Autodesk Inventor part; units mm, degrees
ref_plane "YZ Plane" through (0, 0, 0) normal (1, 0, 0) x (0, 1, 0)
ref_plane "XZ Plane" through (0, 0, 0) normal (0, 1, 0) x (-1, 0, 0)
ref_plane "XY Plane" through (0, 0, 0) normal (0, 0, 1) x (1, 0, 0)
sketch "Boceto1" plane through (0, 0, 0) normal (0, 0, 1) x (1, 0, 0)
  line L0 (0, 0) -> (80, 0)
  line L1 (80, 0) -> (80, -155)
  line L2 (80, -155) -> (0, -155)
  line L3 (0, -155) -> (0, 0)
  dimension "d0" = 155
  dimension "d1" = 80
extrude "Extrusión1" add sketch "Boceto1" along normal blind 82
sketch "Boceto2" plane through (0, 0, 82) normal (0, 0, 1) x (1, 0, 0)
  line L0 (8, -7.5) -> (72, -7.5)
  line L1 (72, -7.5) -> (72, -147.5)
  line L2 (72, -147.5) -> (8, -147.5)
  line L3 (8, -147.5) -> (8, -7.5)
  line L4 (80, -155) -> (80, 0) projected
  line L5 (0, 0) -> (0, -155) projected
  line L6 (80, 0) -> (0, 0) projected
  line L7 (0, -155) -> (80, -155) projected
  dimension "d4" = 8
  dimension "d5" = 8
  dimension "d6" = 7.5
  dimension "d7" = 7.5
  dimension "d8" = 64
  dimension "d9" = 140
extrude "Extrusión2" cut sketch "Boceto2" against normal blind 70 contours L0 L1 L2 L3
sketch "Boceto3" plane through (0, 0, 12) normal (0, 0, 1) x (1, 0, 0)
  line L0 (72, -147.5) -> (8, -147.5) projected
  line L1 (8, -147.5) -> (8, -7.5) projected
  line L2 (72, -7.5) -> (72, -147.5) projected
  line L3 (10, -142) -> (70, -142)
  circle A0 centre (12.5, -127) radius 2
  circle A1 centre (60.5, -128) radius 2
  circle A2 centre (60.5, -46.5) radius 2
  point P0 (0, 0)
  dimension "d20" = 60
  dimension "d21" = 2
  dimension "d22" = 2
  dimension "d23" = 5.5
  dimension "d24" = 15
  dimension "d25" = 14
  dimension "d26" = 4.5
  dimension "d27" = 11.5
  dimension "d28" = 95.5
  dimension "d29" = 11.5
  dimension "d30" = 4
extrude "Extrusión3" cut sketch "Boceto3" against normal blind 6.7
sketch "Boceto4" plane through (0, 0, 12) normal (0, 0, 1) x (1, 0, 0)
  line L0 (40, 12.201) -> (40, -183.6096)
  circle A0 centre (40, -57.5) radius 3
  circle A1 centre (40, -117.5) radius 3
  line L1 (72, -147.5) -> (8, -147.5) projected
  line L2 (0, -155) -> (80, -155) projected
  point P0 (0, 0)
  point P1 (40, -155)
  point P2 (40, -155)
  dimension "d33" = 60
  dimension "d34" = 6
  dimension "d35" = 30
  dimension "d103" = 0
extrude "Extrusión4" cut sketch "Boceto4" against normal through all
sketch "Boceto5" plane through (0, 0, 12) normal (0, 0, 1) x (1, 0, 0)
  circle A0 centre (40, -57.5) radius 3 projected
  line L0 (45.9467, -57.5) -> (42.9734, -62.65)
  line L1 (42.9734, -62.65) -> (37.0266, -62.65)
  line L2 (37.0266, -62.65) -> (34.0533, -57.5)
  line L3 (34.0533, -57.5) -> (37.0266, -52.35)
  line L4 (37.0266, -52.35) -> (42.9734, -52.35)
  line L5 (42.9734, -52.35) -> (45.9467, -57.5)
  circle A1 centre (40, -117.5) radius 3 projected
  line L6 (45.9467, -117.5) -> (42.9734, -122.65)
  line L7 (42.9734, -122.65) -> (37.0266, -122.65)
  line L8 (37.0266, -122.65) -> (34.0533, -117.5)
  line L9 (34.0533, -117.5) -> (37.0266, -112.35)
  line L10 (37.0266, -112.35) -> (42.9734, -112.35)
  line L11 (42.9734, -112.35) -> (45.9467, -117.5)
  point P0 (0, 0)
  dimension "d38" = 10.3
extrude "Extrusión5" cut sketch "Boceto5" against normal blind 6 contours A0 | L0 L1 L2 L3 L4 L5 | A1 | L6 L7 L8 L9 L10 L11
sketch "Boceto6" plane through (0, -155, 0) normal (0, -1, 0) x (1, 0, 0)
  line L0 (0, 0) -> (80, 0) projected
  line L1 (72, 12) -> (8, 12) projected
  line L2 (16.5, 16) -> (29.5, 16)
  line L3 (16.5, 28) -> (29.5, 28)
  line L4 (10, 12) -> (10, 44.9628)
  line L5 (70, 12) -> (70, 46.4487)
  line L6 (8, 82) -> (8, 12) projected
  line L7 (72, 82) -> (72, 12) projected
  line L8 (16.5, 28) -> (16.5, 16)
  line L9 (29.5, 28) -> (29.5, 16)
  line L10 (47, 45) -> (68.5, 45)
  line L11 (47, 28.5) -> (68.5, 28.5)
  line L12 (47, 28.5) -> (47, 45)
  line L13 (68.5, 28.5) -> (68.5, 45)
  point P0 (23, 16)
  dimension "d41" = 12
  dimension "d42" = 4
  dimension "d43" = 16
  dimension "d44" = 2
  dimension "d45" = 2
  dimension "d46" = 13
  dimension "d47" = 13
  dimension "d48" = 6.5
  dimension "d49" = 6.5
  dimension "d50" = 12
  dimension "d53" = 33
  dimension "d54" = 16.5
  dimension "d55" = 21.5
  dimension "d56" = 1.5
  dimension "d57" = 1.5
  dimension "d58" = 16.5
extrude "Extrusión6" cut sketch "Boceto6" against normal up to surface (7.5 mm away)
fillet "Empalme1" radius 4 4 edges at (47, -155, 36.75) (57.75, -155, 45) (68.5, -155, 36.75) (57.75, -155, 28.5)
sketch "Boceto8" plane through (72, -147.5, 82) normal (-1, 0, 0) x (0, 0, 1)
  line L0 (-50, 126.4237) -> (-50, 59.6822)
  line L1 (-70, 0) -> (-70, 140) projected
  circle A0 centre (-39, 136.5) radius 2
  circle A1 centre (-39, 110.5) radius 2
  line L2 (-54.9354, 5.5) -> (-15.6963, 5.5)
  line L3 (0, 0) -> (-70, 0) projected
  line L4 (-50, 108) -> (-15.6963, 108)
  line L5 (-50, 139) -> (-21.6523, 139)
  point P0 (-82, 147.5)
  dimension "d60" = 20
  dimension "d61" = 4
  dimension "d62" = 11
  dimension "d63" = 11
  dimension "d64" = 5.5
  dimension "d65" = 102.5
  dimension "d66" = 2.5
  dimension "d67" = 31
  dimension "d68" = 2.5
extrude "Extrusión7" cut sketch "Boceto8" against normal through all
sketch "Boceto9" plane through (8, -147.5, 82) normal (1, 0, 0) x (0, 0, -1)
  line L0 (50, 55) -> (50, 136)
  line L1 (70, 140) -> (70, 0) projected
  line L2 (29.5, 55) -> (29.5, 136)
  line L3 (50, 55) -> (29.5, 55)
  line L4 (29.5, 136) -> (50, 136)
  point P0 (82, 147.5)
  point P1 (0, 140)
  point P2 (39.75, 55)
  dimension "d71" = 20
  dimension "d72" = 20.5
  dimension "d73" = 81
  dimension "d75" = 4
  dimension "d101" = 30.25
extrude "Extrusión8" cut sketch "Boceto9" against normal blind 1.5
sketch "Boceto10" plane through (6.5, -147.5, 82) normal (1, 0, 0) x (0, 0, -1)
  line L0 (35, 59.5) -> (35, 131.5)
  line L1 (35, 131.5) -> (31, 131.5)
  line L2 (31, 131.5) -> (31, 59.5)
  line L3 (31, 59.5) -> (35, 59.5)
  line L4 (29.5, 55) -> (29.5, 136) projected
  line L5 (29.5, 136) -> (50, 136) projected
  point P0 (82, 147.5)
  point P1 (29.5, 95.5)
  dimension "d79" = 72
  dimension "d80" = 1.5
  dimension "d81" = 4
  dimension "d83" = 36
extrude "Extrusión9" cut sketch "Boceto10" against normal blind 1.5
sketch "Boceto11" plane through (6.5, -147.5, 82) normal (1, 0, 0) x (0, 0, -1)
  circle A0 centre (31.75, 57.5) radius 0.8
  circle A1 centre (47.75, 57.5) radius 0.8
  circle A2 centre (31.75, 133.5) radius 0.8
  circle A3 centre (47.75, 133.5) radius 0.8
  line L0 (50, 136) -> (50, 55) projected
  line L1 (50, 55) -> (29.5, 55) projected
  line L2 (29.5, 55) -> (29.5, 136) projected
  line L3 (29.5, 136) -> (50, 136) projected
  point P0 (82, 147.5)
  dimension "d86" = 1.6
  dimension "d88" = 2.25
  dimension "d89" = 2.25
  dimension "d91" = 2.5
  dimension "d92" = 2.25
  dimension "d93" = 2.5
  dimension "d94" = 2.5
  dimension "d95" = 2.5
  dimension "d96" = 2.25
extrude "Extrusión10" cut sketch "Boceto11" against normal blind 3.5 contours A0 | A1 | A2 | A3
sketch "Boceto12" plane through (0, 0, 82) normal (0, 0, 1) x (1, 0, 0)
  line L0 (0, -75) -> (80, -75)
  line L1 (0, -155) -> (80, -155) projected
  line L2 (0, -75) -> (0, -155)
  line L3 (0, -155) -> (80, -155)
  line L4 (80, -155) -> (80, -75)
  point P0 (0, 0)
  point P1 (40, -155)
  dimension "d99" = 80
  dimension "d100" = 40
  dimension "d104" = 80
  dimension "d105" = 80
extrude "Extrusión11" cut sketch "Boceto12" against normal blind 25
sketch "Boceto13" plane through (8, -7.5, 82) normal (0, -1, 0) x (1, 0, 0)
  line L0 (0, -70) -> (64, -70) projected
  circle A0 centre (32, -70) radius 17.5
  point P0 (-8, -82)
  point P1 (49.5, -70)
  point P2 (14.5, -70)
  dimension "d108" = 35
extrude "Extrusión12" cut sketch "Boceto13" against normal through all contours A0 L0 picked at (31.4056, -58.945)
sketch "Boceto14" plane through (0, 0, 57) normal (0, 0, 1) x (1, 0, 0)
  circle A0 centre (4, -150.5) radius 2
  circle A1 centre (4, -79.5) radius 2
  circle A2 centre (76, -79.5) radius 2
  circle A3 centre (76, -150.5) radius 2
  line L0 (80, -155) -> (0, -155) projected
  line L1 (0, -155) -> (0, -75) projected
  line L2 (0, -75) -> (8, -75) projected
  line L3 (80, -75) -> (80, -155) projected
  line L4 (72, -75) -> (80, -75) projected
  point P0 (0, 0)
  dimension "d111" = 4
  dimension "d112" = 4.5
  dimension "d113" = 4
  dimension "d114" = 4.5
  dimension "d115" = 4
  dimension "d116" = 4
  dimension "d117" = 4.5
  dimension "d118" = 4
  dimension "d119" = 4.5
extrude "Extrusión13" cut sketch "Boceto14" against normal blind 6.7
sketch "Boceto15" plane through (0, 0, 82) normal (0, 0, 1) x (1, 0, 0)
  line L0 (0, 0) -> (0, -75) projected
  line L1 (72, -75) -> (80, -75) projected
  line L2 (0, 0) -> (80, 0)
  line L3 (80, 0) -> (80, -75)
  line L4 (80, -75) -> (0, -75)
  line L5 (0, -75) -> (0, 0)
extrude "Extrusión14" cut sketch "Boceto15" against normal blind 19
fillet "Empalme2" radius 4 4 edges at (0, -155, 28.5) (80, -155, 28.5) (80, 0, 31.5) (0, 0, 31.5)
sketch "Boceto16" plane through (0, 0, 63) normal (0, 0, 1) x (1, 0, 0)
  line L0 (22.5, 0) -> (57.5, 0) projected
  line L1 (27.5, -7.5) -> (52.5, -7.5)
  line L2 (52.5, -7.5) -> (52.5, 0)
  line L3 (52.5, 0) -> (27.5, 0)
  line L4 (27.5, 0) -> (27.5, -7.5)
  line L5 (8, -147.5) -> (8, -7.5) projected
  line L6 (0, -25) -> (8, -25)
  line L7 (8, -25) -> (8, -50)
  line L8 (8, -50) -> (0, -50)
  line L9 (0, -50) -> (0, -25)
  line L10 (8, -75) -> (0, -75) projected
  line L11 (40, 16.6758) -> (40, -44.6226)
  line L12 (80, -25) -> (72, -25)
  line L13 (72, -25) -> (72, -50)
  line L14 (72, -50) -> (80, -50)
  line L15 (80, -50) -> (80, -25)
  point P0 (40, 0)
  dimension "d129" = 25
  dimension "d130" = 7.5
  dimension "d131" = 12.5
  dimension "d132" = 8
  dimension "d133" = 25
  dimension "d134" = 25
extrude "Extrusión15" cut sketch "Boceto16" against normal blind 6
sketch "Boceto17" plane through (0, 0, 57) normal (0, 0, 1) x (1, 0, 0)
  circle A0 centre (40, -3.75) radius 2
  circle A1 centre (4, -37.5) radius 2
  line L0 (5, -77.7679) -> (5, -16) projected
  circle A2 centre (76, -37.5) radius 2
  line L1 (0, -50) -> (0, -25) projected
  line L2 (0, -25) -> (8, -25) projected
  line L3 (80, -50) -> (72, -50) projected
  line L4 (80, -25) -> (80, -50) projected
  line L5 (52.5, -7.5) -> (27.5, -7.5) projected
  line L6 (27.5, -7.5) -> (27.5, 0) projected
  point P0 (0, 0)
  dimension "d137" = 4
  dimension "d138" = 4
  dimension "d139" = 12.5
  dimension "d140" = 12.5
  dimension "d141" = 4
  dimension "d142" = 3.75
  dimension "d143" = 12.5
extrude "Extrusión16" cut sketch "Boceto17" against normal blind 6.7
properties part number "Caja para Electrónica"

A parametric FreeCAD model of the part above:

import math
import FreeCAD as App
import Part
import Sketcher
from FreeCAD import Vector
Q = App.Units.Quantity


def edges_at(feature, points):
    """Names of the edges that pass closest to the given points."""
    edges = feature.Shape.Edges
    near = lambda p: min(range(len(edges)), key=lambda i: edges[i].distToShape(Part.Vertex(*p))[0])
    return sorted({f"Edge{near(p) + 1}" for p in points})

doc = App.newDocument("Part")
params = doc.addObject("Spreadsheet::Sheet", "Params")
for row, (alias, value) in enumerate([
    ("sketch1_width", "80 mm"),
    ("sketch1_height", "155 mm"),
    ("pad1_length", "82 mm"),
    ("sketch2_width", "64 mm"),
    ("sketch2_height", "140 mm"),
    ("pocket1_length", "70 mm"),
    ("sketch3_diameter", "4 mm"),
    ("pocket2_length", "6.7 mm"),
    ("sketch4_diameter", "6 mm"),
    ("pocket4_length", "6 mm"),
    ("sketch6_width", "13 mm"),
    ("sketch6_height", "12 mm"),
    ("sketch6_width2", "21.5 mm"),
    ("sketch6_height2", "16.5 mm"),
    ("pocket5_length", "7.5 mm"),
    ("fillet_radius", "4 mm"),
    ("sketch7_diameter", "4 mm"),
    ("sketch8_width", "81 mm"),
    ("sketch8_height", "20.5 mm"),
    ("pocket7_length", "1.5 mm"),
    ("sketch9_width", "72 mm"),
    ("sketch9_height", "4 mm"),
    ("pocket8_length", "1.5 mm"),
    ("sketch10_diameter", "1.6 mm"),
    ("pocket9_length", "3.5 mm"),
    ("sketch11_width", "80 mm"),
    ("pocket10_length", "25 mm"),
    ("sketch12_radius", "17.5 mm"),
    ("sketch13_diameter", "4 mm"),
    ("pocket12_length", "6.7 mm"),
    ("sketch14_width", "80 mm"),
    ("sketch14_height", "75 mm"),
    ("pocket13_length", "19 mm"),
    ("fillet2_radius", "4 mm"),
    ("sketch15_width", "25 mm"),
    ("sketch15_width2", "8 mm"),
    ("sketch15_height", "7.5 mm"),
    ("pocket14_length", "6 mm"),
    ("sketch16_diameter", "4 mm"),
    ("pocket15_length", "6.7 mm"),
], start=1):
    params.set(f"A{row}", alias)
    params.set(f"B{row}", "=" + value)
    params.setAlias(f"B{row}", alias)

body = doc.addObject("PartDesign::Body", "Body")

# Sketch on XY plane
sketch1 = body.newObject("Sketcher::SketchObject", "Sketch")
sketch1.AttachmentSupport = (doc.getObject("XY_Plane"), [""])
sketch1.MapMode = "FlatFace"
sketch1.addGeometry([
    Part.LineSegment(Vector(80, 0, 0), Vector(0, 0, 0)),
    Part.LineSegment(Vector(0, 0, 0), Vector(0, -155, 0)),
    Part.LineSegment(Vector(0, -155, 0), Vector(80, -155, 0)),
    Part.LineSegment(Vector(80, -155, 0), Vector(80, 0, 0)),
], False)
sketch1.addConstraint([
    Sketcher.Constraint("Coincident", 0, 2, 1, 1),
    Sketcher.Constraint("Coincident", 1, 2, 2, 1),
    Sketcher.Constraint("Coincident", 2, 2, 3, 1),
    Sketcher.Constraint("Coincident", 3, 2, 0, 1),
    Sketcher.Constraint("Horizontal", 0),
    Sketcher.Constraint("Vertical", 1),
    Sketcher.Constraint("Horizontal", 2),
    Sketcher.Constraint("Vertical", 3),
    Sketcher.Constraint("Coincident", 0, 2, -1, 1),
    Sketcher.Constraint("DistanceX", 0, 2, 0, 1, 80.0),
    Sketcher.Constraint("DistanceY", 1, 2, 1, 1, 155.0),
])
sketch1.setExpression("Constraints[9]", "Params.sketch1_width")
sketch1.setExpression("Constraints[10]", "Params.sketch1_height")
pad1 = body.newObject("PartDesign::Pad", "Pad")
pad1.Profile = sketch1
pad1.setExpression("Length", "Params.pad1_length")

# Sketch on XY plane
sketch2 = body.newObject("Sketcher::SketchObject", "Sketch001")
sketch2.AttachmentSupport = (doc.getObject("XY_Plane"), [""])
sketch2.MapMode = "FlatFace"
sketch2.AttachmentOffset = App.Placement(Vector(0, 0, 82), App.Rotation())
sketch2.addGeometry([
    Part.LineSegment(Vector(72, -8, 0), Vector(8, -8, 0)),
    Part.LineSegment(Vector(8, -8, 0), Vector(8, -148, 0)),
    Part.LineSegment(Vector(8, -148, 0), Vector(72, -148, 0)),
    Part.LineSegment(Vector(72, -148, 0), Vector(72, -8, 0)),
], False)
sketch2.addConstraint([
    Sketcher.Constraint("Coincident", 0, 2, 1, 1),
    Sketcher.Constraint("Coincident", 1, 2, 2, 1),
    Sketcher.Constraint("Coincident", 2, 2, 3, 1),
    Sketcher.Constraint("Coincident", 3, 2, 0, 1),
    Sketcher.Constraint("Horizontal", 0),
    Sketcher.Constraint("Vertical", 1),
    Sketcher.Constraint("Horizontal", 2),
    Sketcher.Constraint("Vertical", 3),
    Sketcher.Constraint("DistanceX", 0, 2, 0, 1, 64.0),
    Sketcher.Constraint("DistanceY", 1, 2, 1, 1, 140.0),
    Sketcher.Constraint("DistanceX", -1, 1, 0, 2, 8.0),
    Sketcher.Constraint("DistanceY", 0, 2, -1, 1, 7.5),
])
sketch2.setExpression("Constraints[8]", "Params.sketch2_width")
sketch2.setExpression("Constraints[9]", "Params.sketch2_height")
pocket1 = body.newObject("PartDesign::Pocket", "Pocket")
pocket1.Profile = sketch2
pocket1.setExpression("Length", "Params.pocket1_length")

# Sketch on XY plane
sketch3 = body.newObject("Sketcher::SketchObject", "Sketch002")
sketch3.AttachmentSupport = (doc.getObject("XY_Plane"), [""])
sketch3.MapMode = "FlatFace"
sketch3.AttachmentOffset = App.Placement(Vector(0, 0, 12), App.Rotation())
sketch3.addGeometry([
    Part.Circle(Vector(12.5, -127, 0), Vector(0, 0, 1), 2),
    Part.Circle(Vector(60.5, -128, 0), Vector(0, 0, 1), 2),
    Part.Circle(Vector(60.5, -46.5, 0), Vector(0, 0, 1), 2),
], False)
sketch3.addConstraint([
    Sketcher.Constraint("Equal", 0, 1),
    Sketcher.Constraint("Equal", 1, 2),
    Sketcher.Constraint("Vertical", 1, 3, 2, 3),
    Sketcher.Constraint("Diameter", 0, 4.0),
    Sketcher.Constraint("DistanceY", 0, 3, -1, 1, 127.0),
    Sketcher.Constraint("DistanceY", 1, 3, -1, 1, 128.0),
    Sketcher.Constraint("DistanceX", 0, 3, 1, 3, 48.0),
    Sketcher.Constraint("DistanceX", -1, 1, 0, 3, 12.5),
    Sketcher.Constraint("DistanceY", 2, 3, -1, 1, 46.5),
])
sketch3.setExpression("Constraints[3]", "Params.sketch3_diameter")
pocket2 = body.newObject("PartDesign::Pocket", "Pocket001")
pocket2.Profile = sketch3
pocket2.setExpression("Length", "Params.pocket2_length")

# Sketch on XY plane
sketch4 = body.newObject("Sketcher::SketchObject", "Sketch003")
sketch4.AttachmentSupport = (doc.getObject("XY_Plane"), [""])
sketch4.MapMode = "FlatFace"
sketch4.AttachmentOffset = App.Placement(Vector(0, 0, 12), App.Rotation())
sketch4.addGeometry([
    Part.Circle(Vector(40, -57.5, 0), Vector(0, 0, 1), 3),
    Part.Circle(Vector(40, -117.5, 0), Vector(0, 0, 1), 3),
], False)
sketch4.addConstraint([
    Sketcher.Constraint("Equal", 0, 1),
    Sketcher.Constraint("Vertical", 0, 3, 1, 3),
    Sketcher.Constraint("Diameter", 0, 6.0),
    Sketcher.Constraint("DistanceY", 1, 3, 0, 3, 60.0),
    Sketcher.Constraint("DistanceX", -1, 1, 0, 3, 40.0),
    Sketcher.Constraint("DistanceY", 0, 3, -1, 1, 57.5),
])
sketch4.setExpression("Constraints[2]", "Params.sketch4_diameter")
pocket3 = body.newObject("PartDesign::Pocket", "Pocket002")
pocket3.Profile = sketch4
pocket3.Type = "ThroughAll"

# Sketch on XY plane
sketch5 = body.newObject("Sketcher::SketchObject", "Sketch004")
sketch5.AttachmentSupport = (doc.getObject("XY_Plane"), [""])
sketch5.MapMode = "FlatFace"
sketch5.AttachmentOffset = App.Placement(Vector(0, 0, 12), App.Rotation())
sketch5.addGeometry([
    Part.LineSegment(Vector(43, -63, 0), Vector(46, -58, 0)),  # 0
    Part.LineSegment(Vector(46, -58, 0), Vector(43, -52, 0)),  # 1
    Part.LineSegment(Vector(43, -52, 0), Vector(37, -52, 0)),  # 2
    Part.LineSegment(Vector(37, -52, 0), Vector(34, -58, 0)),  # 3
    Part.LineSegment(Vector(34, -58, 0), Vector(37, -63, 0)),  # 4
    Part.LineSegment(Vector(37, -63, 0), Vector(43, -63, 0)),  # 5
    Part.LineSegment(Vector(43, -123, 0), Vector(46, -118, 0)),  # 6
    Part.LineSegment(Vector(46, -118, 0), Vector(43, -112, 0)),  # 7
    Part.LineSegment(Vector(43, -112, 0), Vector(37, -112, 0)),  # 8
    Part.LineSegment(Vector(37, -112, 0), Vector(34, -118, 0)),  # 9
    Part.LineSegment(Vector(34, -118, 0), Vector(37, -123, 0)),  # 10
    Part.LineSegment(Vector(37, -123, 0), Vector(43, -123, 0)),  # 11
], False)
sketch5.addConstraint([
    Sketcher.Constraint("Coincident", 0, 2, 1, 1),
    Sketcher.Constraint("Coincident", 1, 2, 2, 1),
    Sketcher.Constraint("Coincident", 2, 2, 3, 1),
    Sketcher.Constraint("Coincident", 3, 2, 4, 1),
    Sketcher.Constraint("Coincident", 4, 2, 5, 1),
    Sketcher.Constraint("Coincident", 5, 2, 0, 1),
    Sketcher.Constraint("Coincident", 6, 2, 7, 1),
    Sketcher.Constraint("Coincident", 7, 2, 8, 1),
    Sketcher.Constraint("Coincident", 8, 2, 9, 1),
    Sketcher.Constraint("Coincident", 9, 2, 10, 1),
    Sketcher.Constraint("Coincident", 10, 2, 11, 1),
    Sketcher.Constraint("Coincident", 11, 2, 6, 1),
    Sketcher.Constraint("Horizontal", 2),
    Sketcher.Constraint("Horizontal", 5),
    Sketcher.Constraint("Horizontal", 8),
    Sketcher.Constraint("Horizontal", 11),
    Sketcher.Constraint("Parallel", 0, 3),
    Sketcher.Constraint("Parallel", 1, 4),
    Sketcher.Constraint("Parallel", 3, 6),
    Sketcher.Constraint("Parallel", 4, 7),
    Sketcher.Constraint("Parallel", 6, 9),
    Sketcher.Constraint("Parallel", 7, 10),
    Sketcher.Constraint("Horizontal", 0, 2, 3, 2),
    Sketcher.Constraint("Horizontal", 6, 2, 9, 2),
    Sketcher.Constraint("Vertical", 2, 2, 4, 2),
    Sketcher.Constraint("Vertical", 1, 2, 5, 2),
    Sketcher.Constraint("Vertical", 0, 2, 6, 2),
    Sketcher.Constraint("Vertical", 5, 2, 7, 2),
    Sketcher.Constraint("Vertical", 4, 2, 8, 2),
    Sketcher.Constraint("Vertical", 8, 2, 10, 2),
    Sketcher.Constraint("DistanceY", 4, 2, 2, 2, 10.3),
    Sketcher.Constraint("Angle", 0, Q("60.0004 deg")),
    Sketcher.Constraint("DistanceY", 6, 2, 0, 2, 60.0),
    Sketcher.Constraint("DistanceY", 0, 2, -1, 1, 57.5),
    Sketcher.Constraint("DistanceX", 2, 2, 0, 2, 8.92),
    Sketcher.Constraint("DistanceX", -1, 1, 0, 2, 45.9467),
])
pocket4 = body.newObject("PartDesign::Pocket", "Pocket003")
pocket4.Profile = sketch5
pocket4.setExpression("Length", "Params.pocket4_length")

# Sketch on XZ plane
sketch6 = body.newObject("Sketcher::SketchObject", "Sketch005")
sketch6.AttachmentSupport = (doc.getObject("XZ_Plane"), [""])
sketch6.MapMode = "FlatFace"
sketch6.AttachmentOffset = App.Placement(Vector(0, 0, 155), App.Rotation())
sketch6.addGeometry([
    Part.LineSegment(Vector(16, 28, 0), Vector(16, 16, 0)),  # 0
    Part.LineSegment(Vector(16, 16, 0), Vector(30, 16, 0)),  # 1
    Part.LineSegment(Vector(30, 16, 0), Vector(30, 28, 0)),  # 2
    Part.LineSegment(Vector(30, 28, 0), Vector(16, 28, 0)),  # 3
    Part.LineSegment(Vector(68, 45, 0), Vector(47, 45, 0)),  # 4
    Part.LineSegment(Vector(47, 45, 0), Vector(47, 28, 0)),  # 5
    Part.LineSegment(Vector(47, 28, 0), Vector(68, 28, 0)),  # 6
    Part.LineSegment(Vector(68, 28, 0), Vector(68, 45, 0)),  # 7
], False)
sketch6.addConstraint([
    Sketcher.Constraint("Coincident", 0, 2, 1, 1),
    Sketcher.Constraint("Coincident", 1, 2, 2, 1),
    Sketcher.Constraint("Coincident", 2, 2, 3, 1),
    Sketcher.Constraint("Coincident", 3, 2, 0, 1),
    Sketcher.Constraint("Coincident", 4, 2, 5, 1),
    Sketcher.Constraint("Coincident", 5, 2, 6, 1),
    Sketcher.Constraint("Coincident", 6, 2, 7, 1),
    Sketcher.Constraint("Coincident", 7, 2, 4, 1),
    Sketcher.Constraint("Vertical", 0),
    Sketcher.Constraint("Horizontal", 1),
    Sketcher.Constraint("Vertical", 2),
    Sketcher.Constraint("Horizontal", 3),
    Sketcher.Constraint("Horizontal", 4),
    Sketcher.Constraint("Vertical", 5),
    Sketcher.Constraint("Horizontal", 6),
    Sketcher.Constraint("Vertical", 7),
    Sketcher.Constraint("DistanceX", 1, 1, 1, 2, 13.0),
    Sketcher.Constraint("DistanceY", 0, 2, 0, 1, 12.0),
    Sketcher.Constraint("DistanceX", 4, 2, 4, 1, 21.5),
    Sketcher.Constraint("DistanceY", 5, 2, 5, 1, 16.5),
    Sketcher.Constraint("DistanceY", -1, 1, 0, 2, 16.0),
    Sketcher.Constraint("DistanceX", -1, 1, 0, 2, 16.5),
    Sketcher.Constraint("DistanceX", -1, 1, 4, 2, 47.0),
    Sketcher.Constraint("DistanceY", -1, 1, 4, 2, 45.0),
])
sketch6.setExpression("Constraints[16]", "Params.sketch6_width")
sketch6.setExpression("Constraints[17]", "Params.sketch6_height")
sketch6.setExpression("Constraints[18]", "Params.sketch6_width2")
sketch6.setExpression("Constraints[19]", "Params.sketch6_height2")
pocket5 = body.newObject("PartDesign::Pocket", "Pocket004")
pocket5.Profile = sketch6
pocket5.setExpression("Length", "Params.pocket5_length")
doc.recompute()

fillet = body.newObject("PartDesign::Fillet", "Fillet")
fillet.Base = (pocket5, edges_at(pocket5, [
    (47, -155, 36.75),
    (57.75, -155, 45),
    (68.5, -155, 36.75),
    (57.75, -155, 28.5),
]))
fillet.setExpression("Radius", "Params.fillet_radius")

# Sketch on YZ plane
sketch7 = body.newObject("Sketcher::SketchObject", "Sketch006")
sketch7.AttachmentSupport = (doc.getObject("YZ_Plane"), [""])
sketch7.MapMode = "FlatFace"
sketch7.AttachmentOffset = App.Placement(Vector(0, 0, 72), App.Rotation())
sketch7.addGeometry([
    Part.Circle(Vector(-11, 43, 0), Vector(0, 0, 1), 2),
    Part.Circle(Vector(-37, 43, 0), Vector(0, 0, 1), 2),
], False)
sketch7.addConstraint([
    Sketcher.Constraint("Equal", 0, 1),
    Sketcher.Constraint("Horizontal", 0, 3, 1, 3),
    Sketcher.Constraint("Diameter", 0, 4.0),
    Sketcher.Constraint("DistanceX", 0, 3, -1, 1, 11.0),
    Sketcher.Constraint("DistanceY", -1, 1, 0, 3, 43.0),
    Sketcher.Constraint("DistanceX", 1, 3, -1, 1, 37.0),
])
sketch7.setExpression("Constraints[2]", "Params.sketch7_diameter")
pocket6 = body.newObject("PartDesign::Pocket", "Pocket005")
pocket6.Profile = sketch7
pocket6.Type = "ThroughAll"
pocket6.Reversed = True

# Sketch on YZ plane
sketch8 = body.newObject("Sketcher::SketchObject", "Sketch007")
sketch8.AttachmentSupport = (doc.getObject("YZ_Plane"), [""])
sketch8.MapMode = "FlatFace"
sketch8.AttachmentOffset = App.Placement(Vector(0, 0, 8), App.Rotation())
sketch8.addGeometry([
    Part.LineSegment(Vector(-92, 52, 0), Vector(-92, 32, 0)),
    Part.LineSegment(Vector(-92, 32, 0), Vector(-12, 32, 0)),
    Part.LineSegment(Vector(-12, 32, 0), Vector(-12, 52, 0)),
    Part.LineSegment(Vector(-12, 52, 0), Vector(-92, 52, 0)),
], False)
sketch8.addConstraint([
    Sketcher.Constraint("Coincident", 0, 2, 1, 1),
    Sketcher.Constraint("Coincident", 1, 2, 2, 1),
    Sketcher.Constraint("Coincident", 2, 2, 3, 1),
    Sketcher.Constraint("Coincident", 3, 2, 0, 1),
    Sketcher.Constraint("Vertical", 0),
    Sketcher.Constraint("Horizontal", 1),
    Sketcher.Constraint("Vertical", 2),
    Sketcher.Constraint("Horizontal", 3),
    Sketcher.Constraint("DistanceX", 1, 1, 1, 2, 81.0),
    Sketcher.Constraint("DistanceY", 0, 2, 0, 1, 20.5),
    Sketcher.Constraint("DistanceY", -1, 1, 0, 2, 32.0),
    Sketcher.Constraint("DistanceX", 0, 2, -1, 1, 92.5),
])
sketch8.setExpression("Constraints[8]", "Params.sketch8_width")
sketch8.setExpression("Constraints[9]", "Params.sketch8_height")
pocket7 = body.newObject("PartDesign::Pocket", "Pocket006")
pocket7.Profile = sketch8
pocket7.setExpression("Length", "Params.pocket7_length")

# Sketch on YZ plane
sketch9 = body.newObject("Sketcher::SketchObject", "Sketch008")
sketch9.AttachmentSupport = (doc.getObject("YZ_Plane"), [""])
sketch9.MapMode = "FlatFace"
sketch9.AttachmentOffset = App.Placement(Vector(0, 0, 6.5), App.Rotation())
sketch9.addGeometry([
    Part.LineSegment(Vector(-88, 51, 0), Vector(-88, 47, 0)),
    Part.LineSegment(Vector(-88, 47, 0), Vector(-16, 47, 0)),
    Part.LineSegment(Vector(-16, 47, 0), Vector(-16, 51, 0)),
    Part.LineSegment(Vector(-16, 51, 0), Vector(-88, 51, 0)),
], False)
sketch9.addConstraint([
    Sketcher.Constraint("Coincident", 0, 2, 1, 1),
    Sketcher.Constraint("Coincident", 1, 2, 2, 1),
    Sketcher.Constraint("Coincident", 2, 2, 3, 1),
    Sketcher.Constraint("Coincident", 3, 2, 0, 1),
    Sketcher.Constraint("Vertical", 0),
    Sketcher.Constraint("Horizontal", 1),
    Sketcher.Constraint("Vertical", 2),
    Sketcher.Constraint("Horizontal", 3),
    Sketcher.Constraint("DistanceX", 1, 1, 1, 2, 72.0),
    Sketcher.Constraint("DistanceY", 0, 2, 0, 1, 4.0),
    Sketcher.Constraint("DistanceX", 0, 2, -1, 1, 88.0),
    Sketcher.Constraint("DistanceY", -1, 1, 0, 2, 47.0),
])
sketch9.setExpression("Constraints[8]", "Params.sketch9_width")
sketch9.setExpression("Constraints[9]", "Params.sketch9_height")
pocket8 = body.newObject("PartDesign::Pocket", "Pocket007")
pocket8.Profile = sketch9
pocket8.setExpression("Length", "Params.pocket8_length")

# Sketch on YZ plane
sketch10 = body.newObject("Sketcher::SketchObject", "Sketch009")
sketch10.AttachmentSupport = (doc.getObject("YZ_Plane"), [""])
sketch10.MapMode = "FlatFace"
sketch10.AttachmentOffset = App.Placement(Vector(0, 0, 6.5), App.Rotation())
sketch10.addGeometry([
    Part.Circle(Vector(-90, 50.2, 0), Vector(0, 0, 1), 0.8),
    Part.Circle(Vector(-90, 34.2, 0), Vector(0, 0, 1), 0.8),
    Part.Circle(Vector(-14, 50.2, 0), Vector(0, 0, 1), 0.8),
    Part.Circle(Vector(-14, 34.2, 0), Vector(0, 0, 1), 0.8),
], False)
sketch10.addConstraint([
    Sketcher.Constraint("Equal", 0, 1),
    Sketcher.Constraint("Equal", 1, 2),
    Sketcher.Constraint("Equal", 2, 3),
    Sketcher.Constraint("Horizontal", 0, 3, 2, 3),
    Sketcher.Constraint("Horizontal", 1, 3, 3, 3),
    Sketcher.Constraint("Vertical", 0, 3, 1, 3),
    Sketcher.Constraint("Vertical", 2, 3, 3, 3),
    Sketcher.Constraint("Diameter", 0, 1.6),
    Sketcher.Constraint("DistanceX", 0, 3, -1, 1, 90.0),
    Sketcher.Constraint("DistanceX", 2, 3, -1, 1, 14.0),
    Sketcher.Constraint("DistanceY", 1, 3, 0, 3, 16.0),
    Sketcher.Constraint("DistanceY", -1, 1, 0, 3, 50.25),
])
sketch10.setExpression("Constraints[7]", "Params.sketch10_diameter")
pocket9 = body.newObject("PartDesign::Pocket", "Pocket008")
pocket9.Profile = sketch10
pocket9.setExpression("Length", "Params.pocket9_length")

# Sketch on XY plane
sketch11 = body.newObject("Sketcher::SketchObject", "Sketch010")
sketch11.AttachmentSupport = (doc.getObject("XY_Plane"), [""])
sketch11.MapMode = "FlatFace"
sketch11.AttachmentOffset = App.Placement(Vector(0, 0, 82), App.Rotation())
sketch11.addGeometry([
    Part.LineSegment(Vector(80, -75, 0), Vector(0, -75, 0)),
    Part.LineSegment(Vector(0, -75, 0), Vector(0, -155, 0)),
    Part.LineSegment(Vector(0, -155, 0), Vector(80, -155, 0)),
    Part.LineSegment(Vector(80, -155, 0), Vector(80, -75, 0)),
], False)
sketch11.addConstraint([
    Sketcher.Constraint("Coincident", 0, 2, 1, 1),
    Sketcher.Constraint("Coincident", 1, 2, 2, 1),
    Sketcher.Constraint("Coincident", 2, 2, 3, 1),
    Sketcher.Constraint("Coincident", 3, 2, 0, 1),
    Sketcher.Constraint("Horizontal", 0),
    Sketcher.Constraint("Vertical", 1),
    Sketcher.Constraint("Horizontal", 2),
    Sketcher.Constraint("Vertical", 3),
    Sketcher.Constraint("PointOnObject", 0, 2, -2),
    Sketcher.Constraint("Equal", 2, 1),
    Sketcher.Constraint("DistanceX", 0, 2, 0, 1, 80.0),
    Sketcher.Constraint("DistanceY", 0, 2, -1, 1, 75.0),
])
sketch11.setExpression("Constraints[10]", "Params.sketch11_width")
pocket10 = body.newObject("PartDesign::Pocket", "Pocket009")
pocket10.Profile = sketch11
pocket10.setExpression("Length", "Params.pocket10_length")

# Sketch on XZ plane
sketch12 = body.newObject("Sketcher::SketchObject", "Sketch011")
sketch12.AttachmentSupport = (doc.getObject("XZ_Plane"), [""])
sketch12.MapMode = "FlatFace"
sketch12.AttachmentOffset = App.Placement(Vector(0, 0, 7.5), App.Rotation())
sketch12.addGeometry([
    Part.ArcOfCircle(Part.Circle(Vector(40, 12, 0), Vector(0, 0, 1), 18), math.radians(0), math.radians(180)),
    Part.LineSegment(Vector(22, 12, 0), Vector(58, 12, 0)),
], False)
sketch12.addConstraint([
    Sketcher.Constraint("Coincident", 0, 1, 1, 2),
    Sketcher.Constraint("Coincident", 1, 1, 0, 2),
    Sketcher.Constraint("Horizontal", 1),
    Sketcher.Constraint("Radius", 0, 17.5),
    Sketcher.Constraint("DistanceX", -1, 1, 0, 3, 40.0),
    Sketcher.Constraint("DistanceY", -1, 1, 0, 3, 12.0),
    Sketcher.Constraint("DistanceY", -1, 1, 0, 1, 12.0),
])
sketch12.setExpression("Constraints[3]", "Params.sketch12_radius")
pocket11 = body.newObject("PartDesign::Pocket", "Pocket010")
pocket11.Profile = sketch12
pocket11.Type = "ThroughAll"

# Sketch on XY plane
sketch13 = body.newObject("Sketcher::SketchObject", "Sketch012")
sketch13.AttachmentSupport = (doc.getObject("XY_Plane"), [""])
sketch13.MapMode = "FlatFace"
sketch13.AttachmentOffset = App.Placement(Vector(0, 0, 57), App.Rotation())
sketch13.addGeometry([
    Part.Circle(Vector(4, -150.5, 0), Vector(0, 0, 1), 2),
    Part.Circle(Vector(4, -79.5, 0), Vector(0, 0, 1), 2),
    Part.Circle(Vector(76, -79.5, 0), Vector(0, 0, 1), 2),
    Part.Circle(Vector(76, -150.5, 0), Vector(0, 0, 1), 2),
], False)
sketch13.addConstraint([
    Sketcher.Constraint("Equal", 0, 1),
    Sketcher.Constraint("Equal", 1, 2),
    Sketcher.Constraint("Equal", 2, 3),
    Sketcher.Constraint("Horizontal", 1, 3, 2, 3),
    Sketcher.Constraint("Horizontal", 0, 3, 3, 3),
    Sketcher.Constraint("Vertical", 0, 3, 1, 3),
    Sketcher.Constraint("Vertical", 2, 3, 3, 3),
    Sketcher.Constraint("Diameter", 0, 4.0),
    Sketcher.Constraint("DistanceX", -1, 1, 0, 3, 4.0),
    Sketcher.Constraint("DistanceX", -1, 1, 2, 3, 76.0),
    Sketcher.Constraint("DistanceY", 0, 3, 1, 3, 71.0),
    Sketcher.Constraint("DistanceY", 0, 3, -1, 1, 150.5),
])
sketch13.setExpression("Constraints[7]", "Params.sketch13_diameter")
pocket12 = body.newObject("PartDesign::Pocket", "Pocket011")
pocket12.Profile = sketch13
pocket12.setExpression("Length", "Params.pocket12_length")

# Sketch on XY plane
sketch14 = body.newObject("Sketcher::SketchObject", "Sketch013")
sketch14.AttachmentSupport = (doc.getObject("XY_Plane"), [""])
sketch14.MapMode = "FlatFace"
sketch14.AttachmentOffset = App.Placement(Vector(0, 0, 82), App.Rotation())
sketch14.addGeometry([
    Part.LineSegment(Vector(80, 0, 0), Vector(0, 0, 0)),
    Part.LineSegment(Vector(0, 0, 0), Vector(0, -75, 0)),
    Part.LineSegment(Vector(0, -75, 0), Vector(80, -75, 0)),
    Part.LineSegment(Vector(80, -75, 0), Vector(80, 0, 0)),
], False)
sketch14.addConstraint([
    Sketcher.Constraint("Coincident", 0, 2, 1, 1),
    Sketcher.Constraint("Coincident", 1, 2, 2, 1),
    Sketcher.Constraint("Coincident", 2, 2, 3, 1),
    Sketcher.Constraint("Coincident", 3, 2, 0, 1),
    Sketcher.Constraint("Horizontal", 0),
    Sketcher.Constraint("Vertical", 1),
    Sketcher.Constraint("Horizontal", 2),
    Sketcher.Constraint("Vertical", 3),
    Sketcher.Constraint("Coincident", 0, 2, -1, 1),
    Sketcher.Constraint("DistanceX", 0, 2, 0, 1, 80.0),
    Sketcher.Constraint("DistanceY", 1, 2, 1, 1, 75.0),
])
sketch14.setExpression("Constraints[9]", "Params.sketch14_width")
sketch14.setExpression("Constraints[10]", "Params.sketch14_height")
pocket13 = body.newObject("PartDesign::Pocket", "Pocket012")
pocket13.Profile = sketch14
pocket13.setExpression("Length", "Params.pocket13_length")
doc.recompute()

fillet2 = body.newObject("PartDesign::Fillet", "Fillet001")
fillet2.Base = (pocket13, edges_at(pocket13, [
    (0, -155, 28.5),
    (80, -155, 28.5),
    (80, 0, 31.5),
    (0, 0, 31.5),
]))
fillet2.setExpression("Radius", "Params.fillet2_radius")

# Sketch on XY plane
sketch15 = body.newObject("Sketcher::SketchObject", "Sketch014")
sketch15.AttachmentSupport = (doc.getObject("XY_Plane"), [""])
sketch15.MapMode = "FlatFace"
sketch15.AttachmentOffset = App.Placement(Vector(0, 0, 63), App.Rotation())
sketch15.addGeometry([
    Part.LineSegment(Vector(28, 0, 0), Vector(28, -8, 0)),  # 0
    Part.LineSegment(Vector(28, -8, 0), Vector(52, -8, 0)),  # 1
    Part.LineSegment(Vector(52, -8, 0), Vector(52, 0, 0)),  # 2
    Part.LineSegment(Vector(52, 0, 0), Vector(28, 0, 0)),  # 3
    Part.LineSegment(Vector(0, -50, 0), Vector(8, -50, 0)),  # 4
    Part.LineSegment(Vector(8, -50, 0), Vector(8, -25, 0)),  # 5
    Part.LineSegment(Vector(8, -25, 0), Vector(0, -25, 0)),  # 6
    Part.LineSegment(Vector(0, -25, 0), Vector(0, -50, 0)),  # 7
    Part.LineSegment(Vector(80, -50, 0), Vector(80, -25, 0)),  # 8
    Part.LineSegment(Vector(80, -25, 0), Vector(72, -25, 0)),  # 9
    Part.LineSegment(Vector(72, -25, 0), Vector(72, -50, 0)),  # 10
    Part.LineSegment(Vector(72, -50, 0), Vector(80, -50, 0)),  # 11
], False)
sketch15.addConstraint([
    Sketcher.Constraint("Coincident", 0, 2, 1, 1),
    Sketcher.Constraint("Coincident", 1, 2, 2, 1),
    Sketcher.Constraint("Coincident", 2, 2, 3, 1),
    Sketcher.Constraint("Coincident", 3, 2, 0, 1),
    Sketcher.Constraint("Coincident", 4, 2, 5, 1),
    Sketcher.Constraint("Coincident", 5, 2, 6, 1),
    Sketcher.Constraint("Coincident", 6, 2, 7, 1),
    Sketcher.Constraint("Coincident", 7, 2, 4, 1),
    Sketcher.Constraint("Coincident", 8, 2, 9, 1),
    Sketcher.Constraint("Coincident", 9, 2, 10, 1),
    Sketcher.Constraint("Coincident", 10, 2, 11, 1),
    Sketcher.Constraint("Coincident", 11, 2, 8, 1),
    Sketcher.Constraint("Vertical", 0),
    Sketcher.Constraint("Horizontal", 1),
    Sketcher.Constraint("Vertical", 2),
    Sketcher.Constraint("Horizontal", 3),
    Sketcher.Constraint("Horizontal", 4),
    Sketcher.Constraint("Vertical", 5),
    Sketcher.Constraint("Horizontal", 6),
    Sketcher.Constraint("Vertical", 7),
    Sketcher.Constraint("Vertical", 8),
    Sketcher.Constraint("Horizontal", 9),
    Sketcher.Constraint("Vertical", 10),
    Sketcher.Constraint("Horizontal", 11),
    Sketcher.Constraint("PointOnObject", 2, 2, -1),
    Sketcher.Constraint("PointOnObject", 6, 2, -2),
    Sketcher.Constraint("Horizontal", 6, 2, 8, 2),
    Sketcher.Constraint("Horizontal", 7, 2, 10, 2),
    Sketcher.Constraint("Equal", 6, 9),
    Sketcher.Constraint("Equal", 3, 5),
    Sketcher.Constraint("DistanceX", 1, 1, 1, 2, 25.0),
    Sketcher.Constraint("DistanceX", 4, 1, 4, 2, 8.0),
    Sketcher.Constraint("DistanceY", 0, 2, 0, 1, 7.5),
    Sketcher.Constraint("DistanceY", 5, 2, -1, 1, 25.0),
    Sketcher.Constraint("DistanceX", -1, 1, 8, 2, 80.0),
    Sketcher.Constraint("DistanceX", -1, 1, 0, 2, 27.5),
])
sketch15.setExpression("Constraints[30]", "Params.sketch15_width")
sketch15.setExpression("Constraints[31]", "Params.sketch15_width2")
sketch15.setExpression("Constraints[32]", "Params.sketch15_height")
pocket14 = body.newObject("PartDesign::Pocket", "Pocket013")
pocket14.Profile = sketch15
pocket14.setExpression("Length", "Params.pocket14_length")

# Sketch on XY plane
sketch16 = body.newObject("Sketcher::SketchObject", "Sketch015")
sketch16.AttachmentSupport = (doc.getObject("XY_Plane"), [""])
sketch16.MapMode = "FlatFace"
sketch16.AttachmentOffset = App.Placement(Vector(0, 0, 57), App.Rotation())
sketch16.addGeometry([
    Part.Circle(Vector(40, -3.8, 0), Vector(0, 0, 1), 2),
    Part.Circle(Vector(4, -37.5, 0), Vector(0, 0, 1), 2),
    Part.Circle(Vector(76, -37.5, 0), Vector(0, 0, 1), 2),
], False)
sketch16.addConstraint([
    Sketcher.Constraint("Equal", 0, 1),
    Sketcher.Constraint("Equal", 1, 2),
    Sketcher.Constraint("Horizontal", 1, 3, 2, 3),
    Sketcher.Constraint("Diameter", 0, 4.0),
    Sketcher.Constraint("DistanceX", -1, 1, 1, 3, 4.0),
    Sketcher.Constraint("DistanceY", 0, 3, -1, 1, 3.75),
    Sketcher.Constraint("DistanceX", -1, 1, 0, 3, 40.0),
    Sketcher.Constraint("DistanceX", -1, 1, 2, 3, 76.0),
    Sketcher.Constraint("DistanceY", 1, 3, -1, 1, 37.5),
])
sketch16.setExpression("Constraints[3]", "Params.sketch16_diameter")
pocket15 = body.newObject("PartDesign::Pocket", "Pocket014")
pocket15.Profile = sketch16
pocket15.setExpression("Length", "Params.pocket15_length")

doc.recompute()
